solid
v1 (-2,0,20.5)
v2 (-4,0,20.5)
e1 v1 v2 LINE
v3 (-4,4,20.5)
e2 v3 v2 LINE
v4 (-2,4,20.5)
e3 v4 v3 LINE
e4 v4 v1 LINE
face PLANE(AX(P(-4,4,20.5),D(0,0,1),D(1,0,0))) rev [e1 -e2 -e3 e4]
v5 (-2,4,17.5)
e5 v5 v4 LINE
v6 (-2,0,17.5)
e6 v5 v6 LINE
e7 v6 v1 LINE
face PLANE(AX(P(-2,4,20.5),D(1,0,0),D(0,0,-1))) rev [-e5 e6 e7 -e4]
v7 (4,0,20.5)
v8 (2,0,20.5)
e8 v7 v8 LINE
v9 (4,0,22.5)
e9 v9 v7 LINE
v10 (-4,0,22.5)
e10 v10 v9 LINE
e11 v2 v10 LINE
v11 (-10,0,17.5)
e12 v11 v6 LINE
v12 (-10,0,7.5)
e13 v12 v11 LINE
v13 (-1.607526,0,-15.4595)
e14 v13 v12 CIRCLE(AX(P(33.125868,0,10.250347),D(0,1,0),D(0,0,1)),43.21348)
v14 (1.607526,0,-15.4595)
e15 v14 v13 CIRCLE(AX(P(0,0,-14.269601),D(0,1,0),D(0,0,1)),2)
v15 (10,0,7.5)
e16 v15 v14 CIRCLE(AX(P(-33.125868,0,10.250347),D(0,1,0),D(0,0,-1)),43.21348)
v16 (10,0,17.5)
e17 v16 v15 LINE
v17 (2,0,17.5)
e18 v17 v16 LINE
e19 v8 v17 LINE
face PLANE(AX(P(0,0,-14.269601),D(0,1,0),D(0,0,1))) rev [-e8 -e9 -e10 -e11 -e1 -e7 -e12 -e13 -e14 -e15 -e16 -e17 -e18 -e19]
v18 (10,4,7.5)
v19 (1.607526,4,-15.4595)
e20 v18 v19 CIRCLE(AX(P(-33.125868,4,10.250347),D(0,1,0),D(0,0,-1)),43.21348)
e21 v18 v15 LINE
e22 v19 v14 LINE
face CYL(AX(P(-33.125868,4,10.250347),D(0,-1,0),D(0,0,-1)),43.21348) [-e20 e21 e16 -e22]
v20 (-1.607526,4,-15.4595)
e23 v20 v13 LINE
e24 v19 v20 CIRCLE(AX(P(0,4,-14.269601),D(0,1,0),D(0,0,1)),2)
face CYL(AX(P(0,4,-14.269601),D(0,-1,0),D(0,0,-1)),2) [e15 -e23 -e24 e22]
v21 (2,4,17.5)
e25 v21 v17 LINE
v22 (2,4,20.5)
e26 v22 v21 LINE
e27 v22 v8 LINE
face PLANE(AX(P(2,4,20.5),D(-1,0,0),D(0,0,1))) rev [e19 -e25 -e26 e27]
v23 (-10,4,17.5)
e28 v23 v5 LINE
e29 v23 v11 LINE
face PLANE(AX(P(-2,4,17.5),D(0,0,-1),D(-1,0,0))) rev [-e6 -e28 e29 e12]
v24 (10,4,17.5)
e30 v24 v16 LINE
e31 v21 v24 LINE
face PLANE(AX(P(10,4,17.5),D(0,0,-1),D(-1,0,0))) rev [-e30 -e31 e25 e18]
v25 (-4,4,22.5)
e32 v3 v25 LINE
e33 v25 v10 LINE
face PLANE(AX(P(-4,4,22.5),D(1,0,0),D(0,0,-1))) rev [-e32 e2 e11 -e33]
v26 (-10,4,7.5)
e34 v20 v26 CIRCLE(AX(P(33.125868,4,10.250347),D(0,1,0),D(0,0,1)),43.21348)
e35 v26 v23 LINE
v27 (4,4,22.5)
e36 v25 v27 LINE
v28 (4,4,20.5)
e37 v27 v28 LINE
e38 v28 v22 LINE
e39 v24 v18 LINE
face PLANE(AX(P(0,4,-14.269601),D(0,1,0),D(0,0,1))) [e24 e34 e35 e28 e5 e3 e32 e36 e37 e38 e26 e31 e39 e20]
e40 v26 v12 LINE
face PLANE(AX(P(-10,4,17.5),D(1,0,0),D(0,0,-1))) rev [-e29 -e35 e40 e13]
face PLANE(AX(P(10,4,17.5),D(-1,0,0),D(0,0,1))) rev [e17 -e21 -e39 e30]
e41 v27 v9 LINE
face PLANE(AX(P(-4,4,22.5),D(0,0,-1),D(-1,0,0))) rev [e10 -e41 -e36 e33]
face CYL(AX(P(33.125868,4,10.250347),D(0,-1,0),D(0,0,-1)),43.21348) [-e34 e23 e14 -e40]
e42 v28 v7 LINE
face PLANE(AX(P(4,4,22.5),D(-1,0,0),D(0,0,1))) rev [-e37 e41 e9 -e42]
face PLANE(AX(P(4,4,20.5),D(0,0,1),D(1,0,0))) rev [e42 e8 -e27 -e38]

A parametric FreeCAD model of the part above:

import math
import FreeCAD as App
import Part
import Sketcher
from FreeCAD import Vector

doc = App.newDocument("Part")
body = doc.addObject("PartDesign::Body", "Body")

# Sketch on XZ plane
sketch1 = body.newObject("Sketcher::SketchObject", "Sketch")
sketch1.AttachmentSupport = (doc.getObject("XZ_Plane"), [""])
sketch1.MapMode = "FlatFace"
sketch1.addGeometry([
    Part.LineSegment(Vector(2, 17.5, 0), Vector(10, 17.5, 0)),  # 0
    Part.LineSegment(Vector(10, 17.5, 0), Vector(10, 7.5, 0)),  # 1
    Part.ArcOfCircle(Part.Circle(Vector(-33.1, 10.3, 0), Vector(0, 0, 1), 43.2), math.radians(-37), math.radians(-4)),  # 2
    Part.ArcOfCircle(Part.Circle(Vector(0, -14.3, 0), Vector(0, 0, 1), 2), math.radians(-143), math.radians(-37)),  # 3
    Part.ArcOfCircle(Part.Circle(Vector(33.1, 10.3, 0), Vector(0, 0, 1), 43.2), math.radians(-176), math.radians(-143)),  # 4
    Part.LineSegment(Vector(-10, 7.5, 0), Vector(-10, 17.5, 0)),  # 5
    Part.LineSegment(Vector(-10, 17.5, 0), Vector(-2, 17.5, 0)),  # 6
    Part.LineSegment(Vector(-2, 17.5, 0), Vector(-2, 20.5, 0)),  # 7
    Part.LineSegment(Vector(-2, 20.5, 0), Vector(-4, 20.5, 0)),  # 8
    Part.LineSegment(Vector(-4, 20.5, 0), Vector(-4, 22.5, 0)),  # 9
    Part.LineSegment(Vector(-4, 22.5, 0), Vector(4, 22.5, 0)),  # 10
    Part.LineSegment(Vector(4, 22.5, 0), Vector(4, 20.5, 0)),  # 11
    Part.LineSegment(Vector(4, 20.5, 0), Vector(2, 20.5, 0)),  # 12
    Part.LineSegment(Vector(2, 20.5, 0), Vector(2, 17.5, 0)),  # 13
], False)
sketch1.addConstraint([
    Sketcher.Constraint("Coincident", 0, 2, 1, 1),
    Sketcher.Constraint("Coincident", 1, 2, 2, 2),
    Sketcher.Constraint("Tangent", 2, 1, 3, 2),
    Sketcher.Constraint("Tangent", 3, 1, 4, 2),
    Sketcher.Constraint("Coincident", 4, 1, 5, 1),
    Sketcher.Constraint("Coincident", 5, 2, 6, 1),
    Sketcher.Constraint("Coincident", 6, 2, 7, 1),
    Sketcher.Constraint("Coincident", 7, 2, 8, 1),
    Sketcher.Constraint("Coincident", 8, 2, 9, 1),
    Sketcher.Constraint("Coincident", 9, 2, 10, 1),
    Sketcher.Constraint("Coincident", 10, 2, 11, 1),
    Sketcher.Constraint("Coincident", 11, 2, 12, 1),
    Sketcher.Constraint("Coincident", 12, 2, 13, 1),
    Sketcher.Constraint("Coincident", 13, 2, 0, 1),
    Sketcher.Constraint("Horizontal", 0),
    Sketcher.Constraint("Vertical", 1),
    Sketcher.Constraint("Vertical", 5),
    Sketcher.Constraint("Horizontal", 6),
    Sketcher.Constraint("Vertical", 7),
    Sketcher.Constraint("Horizontal", 8),
    Sketcher.Constraint("Vertical", 9),
    Sketcher.Constraint("Horizontal", 10),
    Sketcher.Constraint("Vertical", 11),
    Sketcher.Constraint("Horizontal", 12),
    Sketcher.Constraint("Vertical", 13),
    Sketcher.Constraint("Equal", 2, 4),
    Sketcher.Constraint("Symmetric", 2, 3, 4, 3, -2),
    Sketcher.Constraint("Symmetric", 0, 2, 5, 2, -2),
    Sketcher.Constraint("Symmetric", 8, 2, 11, 2, -2),
    Sketcher.Constraint("Equal", 0, 6),
    Sketcher.Constraint("Equal", 6, 10),
    Sketcher.Constraint("Equal", 12, 9),
    Sketcher.Constraint("Radius", 3, 2.0),
    Sketcher.Constraint("DistanceX", 0, 1, 0, 2, 8.0),
    Sketcher.Constraint("DistanceX", 8, 2, 8, 1, 2.0),
    Sketcher.Constraint("DistanceY", 1, 2, 1, 1, 10.0),
    Sketcher.Constraint("DistanceY", 7, 1, 7, 2, 3.0),
    Sketcher.Constraint("DistanceY", -1, 1, 0, 2, 17.5),
    Sketcher.Constraint("Radius", 2, 43.21348),
    Sketcher.Constraint("DistanceY", 3, 3, -1, 1, 14.269601),
])
pad1 = body.newObject("PartDesign::Pad", "Pad")
pad1.Profile = sketch1
pad1.Length = 4
pad1.Reversed = True

doc.recompute()
